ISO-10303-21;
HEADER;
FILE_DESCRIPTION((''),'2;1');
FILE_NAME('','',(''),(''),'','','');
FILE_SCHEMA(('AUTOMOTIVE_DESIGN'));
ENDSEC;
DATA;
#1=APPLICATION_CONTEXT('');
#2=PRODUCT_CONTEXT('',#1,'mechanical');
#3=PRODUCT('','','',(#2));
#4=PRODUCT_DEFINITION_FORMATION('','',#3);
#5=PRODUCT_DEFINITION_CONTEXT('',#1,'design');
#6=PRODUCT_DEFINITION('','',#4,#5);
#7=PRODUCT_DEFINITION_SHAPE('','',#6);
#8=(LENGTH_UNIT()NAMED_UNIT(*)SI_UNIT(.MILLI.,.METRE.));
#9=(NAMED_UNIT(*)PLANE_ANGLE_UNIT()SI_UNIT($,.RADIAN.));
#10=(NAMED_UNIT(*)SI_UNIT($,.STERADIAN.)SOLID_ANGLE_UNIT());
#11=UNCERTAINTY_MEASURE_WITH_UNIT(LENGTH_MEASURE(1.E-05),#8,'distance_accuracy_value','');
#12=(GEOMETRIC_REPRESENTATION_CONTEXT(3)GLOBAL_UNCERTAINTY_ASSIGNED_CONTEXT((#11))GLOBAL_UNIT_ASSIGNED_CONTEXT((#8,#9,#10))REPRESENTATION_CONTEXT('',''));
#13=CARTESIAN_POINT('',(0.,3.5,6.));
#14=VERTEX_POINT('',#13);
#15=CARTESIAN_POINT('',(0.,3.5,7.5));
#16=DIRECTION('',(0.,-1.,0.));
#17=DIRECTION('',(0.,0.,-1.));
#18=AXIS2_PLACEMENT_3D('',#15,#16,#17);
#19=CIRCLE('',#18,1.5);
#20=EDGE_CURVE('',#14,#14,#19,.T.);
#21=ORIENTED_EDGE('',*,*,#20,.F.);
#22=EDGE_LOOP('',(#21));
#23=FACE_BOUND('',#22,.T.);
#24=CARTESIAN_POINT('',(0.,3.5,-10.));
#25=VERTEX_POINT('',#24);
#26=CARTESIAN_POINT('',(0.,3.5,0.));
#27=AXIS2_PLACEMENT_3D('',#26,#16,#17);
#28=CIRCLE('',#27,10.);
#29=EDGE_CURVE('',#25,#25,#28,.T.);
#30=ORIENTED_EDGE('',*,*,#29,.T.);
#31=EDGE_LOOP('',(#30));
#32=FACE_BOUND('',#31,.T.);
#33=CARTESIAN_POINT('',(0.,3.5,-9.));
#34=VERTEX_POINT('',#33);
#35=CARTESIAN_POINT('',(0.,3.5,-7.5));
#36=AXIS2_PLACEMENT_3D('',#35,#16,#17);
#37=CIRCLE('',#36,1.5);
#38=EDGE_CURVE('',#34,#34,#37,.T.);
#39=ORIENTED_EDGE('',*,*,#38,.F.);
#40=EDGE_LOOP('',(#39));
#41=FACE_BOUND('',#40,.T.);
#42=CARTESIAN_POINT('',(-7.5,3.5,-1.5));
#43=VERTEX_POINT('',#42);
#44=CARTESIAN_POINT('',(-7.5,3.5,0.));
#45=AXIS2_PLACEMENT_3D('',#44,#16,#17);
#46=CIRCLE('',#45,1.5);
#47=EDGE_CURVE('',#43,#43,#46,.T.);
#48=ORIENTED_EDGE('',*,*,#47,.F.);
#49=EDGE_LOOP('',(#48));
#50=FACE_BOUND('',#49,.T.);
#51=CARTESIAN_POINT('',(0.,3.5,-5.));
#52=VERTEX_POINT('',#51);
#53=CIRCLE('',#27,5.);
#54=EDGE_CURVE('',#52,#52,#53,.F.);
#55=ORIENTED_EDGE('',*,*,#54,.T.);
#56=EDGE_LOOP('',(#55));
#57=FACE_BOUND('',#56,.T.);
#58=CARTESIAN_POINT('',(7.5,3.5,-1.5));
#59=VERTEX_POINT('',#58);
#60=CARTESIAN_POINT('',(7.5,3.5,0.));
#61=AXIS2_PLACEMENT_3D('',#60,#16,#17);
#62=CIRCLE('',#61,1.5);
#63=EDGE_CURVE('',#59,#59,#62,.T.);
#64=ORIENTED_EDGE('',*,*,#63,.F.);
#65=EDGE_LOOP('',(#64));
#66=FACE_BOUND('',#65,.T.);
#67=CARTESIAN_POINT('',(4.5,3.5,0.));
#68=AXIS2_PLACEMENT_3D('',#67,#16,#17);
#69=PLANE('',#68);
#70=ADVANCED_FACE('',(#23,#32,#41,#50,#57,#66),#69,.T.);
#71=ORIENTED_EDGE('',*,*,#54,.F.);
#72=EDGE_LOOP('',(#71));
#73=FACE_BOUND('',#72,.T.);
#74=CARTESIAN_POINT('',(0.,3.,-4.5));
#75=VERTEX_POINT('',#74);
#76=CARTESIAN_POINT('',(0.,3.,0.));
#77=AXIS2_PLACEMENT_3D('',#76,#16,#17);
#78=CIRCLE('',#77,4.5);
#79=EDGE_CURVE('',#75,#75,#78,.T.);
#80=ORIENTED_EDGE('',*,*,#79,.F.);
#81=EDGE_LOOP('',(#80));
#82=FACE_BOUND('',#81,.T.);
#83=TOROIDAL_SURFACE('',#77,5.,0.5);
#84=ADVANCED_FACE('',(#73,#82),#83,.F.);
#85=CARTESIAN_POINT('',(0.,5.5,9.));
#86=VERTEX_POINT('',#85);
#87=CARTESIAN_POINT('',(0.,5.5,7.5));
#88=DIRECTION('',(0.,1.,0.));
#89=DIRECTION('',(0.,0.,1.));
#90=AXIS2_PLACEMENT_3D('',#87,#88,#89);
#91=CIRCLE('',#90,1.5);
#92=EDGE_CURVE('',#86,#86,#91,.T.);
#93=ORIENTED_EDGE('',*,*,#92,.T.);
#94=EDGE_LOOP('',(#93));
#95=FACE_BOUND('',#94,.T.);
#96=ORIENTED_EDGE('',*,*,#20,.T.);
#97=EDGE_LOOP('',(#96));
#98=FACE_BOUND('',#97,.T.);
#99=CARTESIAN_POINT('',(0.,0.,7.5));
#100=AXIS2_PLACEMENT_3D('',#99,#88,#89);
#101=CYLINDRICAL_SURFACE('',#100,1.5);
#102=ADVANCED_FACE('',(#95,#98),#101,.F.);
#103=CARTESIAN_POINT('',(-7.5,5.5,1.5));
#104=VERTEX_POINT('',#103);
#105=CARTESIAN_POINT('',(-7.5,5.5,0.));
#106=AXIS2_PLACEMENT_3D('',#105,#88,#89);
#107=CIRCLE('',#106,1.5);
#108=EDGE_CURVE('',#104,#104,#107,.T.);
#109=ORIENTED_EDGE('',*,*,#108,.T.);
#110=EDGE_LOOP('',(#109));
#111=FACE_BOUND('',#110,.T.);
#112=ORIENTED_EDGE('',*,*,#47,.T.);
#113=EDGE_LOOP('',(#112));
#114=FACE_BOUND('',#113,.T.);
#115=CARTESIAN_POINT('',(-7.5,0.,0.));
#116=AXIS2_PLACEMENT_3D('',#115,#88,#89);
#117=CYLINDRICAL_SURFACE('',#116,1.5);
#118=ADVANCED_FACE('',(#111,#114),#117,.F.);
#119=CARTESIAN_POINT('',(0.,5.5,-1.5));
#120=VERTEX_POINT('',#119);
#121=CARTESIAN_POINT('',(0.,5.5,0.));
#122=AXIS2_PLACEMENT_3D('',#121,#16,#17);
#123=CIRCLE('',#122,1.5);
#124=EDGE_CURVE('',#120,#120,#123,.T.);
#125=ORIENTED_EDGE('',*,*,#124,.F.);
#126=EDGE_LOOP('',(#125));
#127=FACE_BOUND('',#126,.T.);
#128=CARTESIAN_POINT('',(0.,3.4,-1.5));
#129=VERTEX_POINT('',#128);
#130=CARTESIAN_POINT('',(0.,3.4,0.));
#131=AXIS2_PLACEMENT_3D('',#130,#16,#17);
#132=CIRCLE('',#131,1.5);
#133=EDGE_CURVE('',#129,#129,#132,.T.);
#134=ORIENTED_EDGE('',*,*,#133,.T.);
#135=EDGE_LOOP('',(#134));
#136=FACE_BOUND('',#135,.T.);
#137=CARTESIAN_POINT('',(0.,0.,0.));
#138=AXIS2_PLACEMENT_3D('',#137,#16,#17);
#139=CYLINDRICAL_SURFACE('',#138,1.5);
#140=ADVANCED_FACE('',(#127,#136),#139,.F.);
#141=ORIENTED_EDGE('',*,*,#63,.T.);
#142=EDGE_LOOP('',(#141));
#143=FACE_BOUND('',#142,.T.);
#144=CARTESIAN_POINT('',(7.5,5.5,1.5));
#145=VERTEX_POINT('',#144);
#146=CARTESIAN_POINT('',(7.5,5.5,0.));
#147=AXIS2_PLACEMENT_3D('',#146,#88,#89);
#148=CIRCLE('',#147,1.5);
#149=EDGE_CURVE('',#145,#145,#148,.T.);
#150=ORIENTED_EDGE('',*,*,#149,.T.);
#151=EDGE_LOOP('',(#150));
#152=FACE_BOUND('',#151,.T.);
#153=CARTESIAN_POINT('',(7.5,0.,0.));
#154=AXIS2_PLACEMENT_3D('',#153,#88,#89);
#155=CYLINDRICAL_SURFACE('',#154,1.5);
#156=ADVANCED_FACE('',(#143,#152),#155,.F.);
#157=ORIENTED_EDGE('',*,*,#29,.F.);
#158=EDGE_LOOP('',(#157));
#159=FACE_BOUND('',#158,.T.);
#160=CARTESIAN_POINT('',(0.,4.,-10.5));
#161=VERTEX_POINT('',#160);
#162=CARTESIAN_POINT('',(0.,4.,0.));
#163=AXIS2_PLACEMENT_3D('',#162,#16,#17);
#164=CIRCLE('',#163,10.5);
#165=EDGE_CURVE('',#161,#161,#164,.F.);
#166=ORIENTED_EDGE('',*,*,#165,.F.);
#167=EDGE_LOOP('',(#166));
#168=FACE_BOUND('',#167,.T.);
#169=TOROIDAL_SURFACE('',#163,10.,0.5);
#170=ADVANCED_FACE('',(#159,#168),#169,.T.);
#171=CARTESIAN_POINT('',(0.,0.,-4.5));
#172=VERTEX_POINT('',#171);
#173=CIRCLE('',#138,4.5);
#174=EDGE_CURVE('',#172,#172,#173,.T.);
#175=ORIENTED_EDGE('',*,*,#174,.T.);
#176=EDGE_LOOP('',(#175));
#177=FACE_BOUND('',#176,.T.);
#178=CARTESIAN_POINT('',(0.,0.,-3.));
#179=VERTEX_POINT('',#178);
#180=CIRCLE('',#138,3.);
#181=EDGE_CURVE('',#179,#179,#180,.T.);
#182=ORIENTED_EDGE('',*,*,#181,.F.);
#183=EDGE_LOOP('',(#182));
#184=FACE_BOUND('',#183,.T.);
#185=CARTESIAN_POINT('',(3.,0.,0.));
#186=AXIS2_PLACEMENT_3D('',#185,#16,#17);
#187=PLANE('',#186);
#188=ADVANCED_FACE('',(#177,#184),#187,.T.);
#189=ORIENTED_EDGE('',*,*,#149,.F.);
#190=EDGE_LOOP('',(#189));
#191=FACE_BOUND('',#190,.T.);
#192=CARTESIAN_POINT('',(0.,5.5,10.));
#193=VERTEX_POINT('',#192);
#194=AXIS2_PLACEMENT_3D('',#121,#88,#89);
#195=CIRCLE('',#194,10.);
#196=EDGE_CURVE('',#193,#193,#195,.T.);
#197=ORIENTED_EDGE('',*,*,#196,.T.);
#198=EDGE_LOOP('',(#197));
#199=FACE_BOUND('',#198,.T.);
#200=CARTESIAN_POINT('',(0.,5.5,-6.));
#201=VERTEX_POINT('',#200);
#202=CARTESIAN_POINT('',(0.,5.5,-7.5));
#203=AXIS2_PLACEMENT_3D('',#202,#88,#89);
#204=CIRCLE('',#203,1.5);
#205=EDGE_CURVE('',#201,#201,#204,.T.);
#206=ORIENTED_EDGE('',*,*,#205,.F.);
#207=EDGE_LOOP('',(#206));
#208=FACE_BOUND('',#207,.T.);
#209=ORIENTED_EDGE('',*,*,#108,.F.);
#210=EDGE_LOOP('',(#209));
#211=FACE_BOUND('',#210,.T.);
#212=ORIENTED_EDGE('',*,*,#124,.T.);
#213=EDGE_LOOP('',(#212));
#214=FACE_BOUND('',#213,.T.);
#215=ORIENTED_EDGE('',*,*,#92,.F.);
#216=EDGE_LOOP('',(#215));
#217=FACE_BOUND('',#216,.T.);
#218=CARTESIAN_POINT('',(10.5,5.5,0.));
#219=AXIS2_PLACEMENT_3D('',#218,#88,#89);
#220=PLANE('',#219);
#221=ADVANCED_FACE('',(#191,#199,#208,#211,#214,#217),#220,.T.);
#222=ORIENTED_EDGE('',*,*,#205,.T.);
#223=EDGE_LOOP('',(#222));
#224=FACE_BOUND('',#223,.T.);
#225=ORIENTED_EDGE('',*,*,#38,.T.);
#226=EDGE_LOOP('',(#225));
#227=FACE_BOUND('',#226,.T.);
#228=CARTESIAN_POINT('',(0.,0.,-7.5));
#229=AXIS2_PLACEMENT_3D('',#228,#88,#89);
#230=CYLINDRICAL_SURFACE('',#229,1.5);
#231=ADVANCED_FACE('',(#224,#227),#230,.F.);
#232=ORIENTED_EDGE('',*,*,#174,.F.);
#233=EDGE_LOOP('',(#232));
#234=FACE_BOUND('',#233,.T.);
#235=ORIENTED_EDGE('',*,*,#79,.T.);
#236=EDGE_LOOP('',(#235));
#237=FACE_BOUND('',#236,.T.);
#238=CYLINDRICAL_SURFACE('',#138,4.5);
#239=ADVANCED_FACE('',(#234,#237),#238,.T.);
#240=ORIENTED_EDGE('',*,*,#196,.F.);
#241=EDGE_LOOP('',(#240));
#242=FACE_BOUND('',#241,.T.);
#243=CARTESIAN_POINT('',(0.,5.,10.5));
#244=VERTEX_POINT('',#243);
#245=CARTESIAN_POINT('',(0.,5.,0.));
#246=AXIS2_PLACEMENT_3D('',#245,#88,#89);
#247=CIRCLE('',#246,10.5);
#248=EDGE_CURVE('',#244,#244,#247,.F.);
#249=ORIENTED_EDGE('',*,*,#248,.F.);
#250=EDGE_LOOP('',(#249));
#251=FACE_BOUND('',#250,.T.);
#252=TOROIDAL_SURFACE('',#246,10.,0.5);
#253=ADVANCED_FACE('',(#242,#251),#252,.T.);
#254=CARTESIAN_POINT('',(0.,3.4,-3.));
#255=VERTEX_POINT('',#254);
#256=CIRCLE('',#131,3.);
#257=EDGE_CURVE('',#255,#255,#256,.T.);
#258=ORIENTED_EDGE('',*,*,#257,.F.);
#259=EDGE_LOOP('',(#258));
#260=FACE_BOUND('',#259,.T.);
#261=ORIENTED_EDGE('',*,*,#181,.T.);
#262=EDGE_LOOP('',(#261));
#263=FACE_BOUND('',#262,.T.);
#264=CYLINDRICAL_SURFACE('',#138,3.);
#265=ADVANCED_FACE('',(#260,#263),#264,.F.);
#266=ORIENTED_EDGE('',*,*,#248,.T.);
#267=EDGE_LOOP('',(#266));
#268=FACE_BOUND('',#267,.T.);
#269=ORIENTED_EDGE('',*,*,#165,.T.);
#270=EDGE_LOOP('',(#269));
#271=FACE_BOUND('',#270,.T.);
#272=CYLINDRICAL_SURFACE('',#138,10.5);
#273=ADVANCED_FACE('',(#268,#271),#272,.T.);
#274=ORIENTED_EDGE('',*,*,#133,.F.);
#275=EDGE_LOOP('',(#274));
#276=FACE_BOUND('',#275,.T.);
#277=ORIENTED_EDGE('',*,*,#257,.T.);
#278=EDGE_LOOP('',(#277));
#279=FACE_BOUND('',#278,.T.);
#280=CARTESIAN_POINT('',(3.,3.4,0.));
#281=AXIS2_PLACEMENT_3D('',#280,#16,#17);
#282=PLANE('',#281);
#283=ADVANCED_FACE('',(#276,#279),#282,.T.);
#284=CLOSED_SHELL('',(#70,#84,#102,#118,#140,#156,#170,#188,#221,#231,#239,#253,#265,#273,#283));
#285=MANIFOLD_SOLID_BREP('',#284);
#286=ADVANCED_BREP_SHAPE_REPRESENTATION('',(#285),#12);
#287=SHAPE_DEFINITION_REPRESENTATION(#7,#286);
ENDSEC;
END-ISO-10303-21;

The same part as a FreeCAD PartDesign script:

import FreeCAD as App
import Part
import Sketcher


def edges_at(feature, points):
    """Names of the edges that pass closest to the given points."""
    edges = feature.Shape.Edges
    near = lambda p: min(range(len(edges)), key=lambda i: edges[i].distToShape(Part.Vertex(*p))[0])
    return sorted({f"Edge{near(p) + 1}" for p in points})

doc = App.newDocument("Part")
body = doc.addObject("PartDesign::Body", "Body")

# Sketch on XY plane
sketch1 = body.newObject("Sketcher::SketchObject", "Sketch")
sketch1.AttachmentSupport = (doc.getObject("XY_Plane"), [""])
sketch1.MapMode = "FlatFace"
sketch1.addGeometry([
    Part.LineSegment(App.Vector(3, 3.4, 0), App.Vector(3, 0, 0)),  # 0
    Part.LineSegment(App.Vector(3, 0, 0), App.Vector(4.5, 0, 0)),  # 1
    Part.LineSegment(App.Vector(4.5, 0, 0), App.Vector(4.5, 3.5, 0)),  # 2
    Part.LineSegment(App.Vector(4.5, 3.5, 0), App.Vector(10.5, 3.5, 0)),  # 3
    Part.LineSegment(App.Vector(10.5, 3.5, 0), App.Vector(10.5, 5.5, 0)),  # 4
    Part.LineSegment(App.Vector(10.5, 5.5, 0), App.Vector(1.5, 5.5, 0)),  # 5
    Part.LineSegment(App.Vector(1.5, 5.5, 0), App.Vector(1.5, 3.4, 0)),  # 6
    Part.LineSegment(App.Vector(1.5, 3.4, 0), App.Vector(3, 3.4, 0)),  # 7
], False)
sketch1.addConstraint([
    Sketcher.Constraint("Coincident", 0, 2, 1, 1),
    Sketcher.Constraint("Coincident", 1, 2, 2, 1),
    Sketcher.Constraint("Coincident", 2, 2, 3, 1),
    Sketcher.Constraint("Coincident", 3, 2, 4, 1),
    Sketcher.Constraint("Coincident", 4, 2, 5, 1),
    Sketcher.Constraint("Coincident", 5, 2, 6, 1),
    Sketcher.Constraint("Coincident", 6, 2, 7, 1),
    Sketcher.Constraint("Coincident", 7, 2, 0, 1),
    Sketcher.Constraint("Vertical", 0),
    Sketcher.Constraint("Horizontal", 1),
    Sketcher.Constraint("Vertical", 2),
    Sketcher.Constraint("Horizontal", 3),
    Sketcher.Constraint("Vertical", 4),
    Sketcher.Constraint("Horizontal", 5),
    Sketcher.Constraint("Vertical", 6),
    Sketcher.Constraint("Horizontal", 7),
    Sketcher.Constraint("PointOnObject", 0, 2, -1),
    Sketcher.Constraint("Equal", 1, 7),
    Sketcher.Constraint("DistanceX", 3, 1, 3, 2, 6.0),
    Sketcher.Constraint("DistanceX", 5, 2, 5, 1, 9.0),
    Sketcher.Constraint("DistanceY", 4, 1, 4, 2, 2.0),
    Sketcher.Constraint("DistanceY", 0, 2, 0, 1, 3.4),
    Sketcher.Constraint("DistanceY", 2, 1, 2, 2, 3.5),
    Sketcher.Constraint("DistanceX", -1, 1, 0, 2, 3.0),
])
revolution = body.newObject("PartDesign::Revolution", "Revolution")
revolution.Profile = sketch1
revolution.ReferenceAxis = (sketch1, ["V_Axis"])
revolution.Angle = 360
doc.recompute()

fillet = body.newObject("PartDesign::Fillet", "Fillet")
fillet.Base = (revolution, edges_at(revolution, [(0, 5.5, 10.5), (0, 3.5, 10.5), (0, 3.5, 4.5)]))
fillet.Radius = 0.5

# Sketch on XZ plane
sketch2 = body.newObject("Sketcher::SketchObject", "Sketch001")
sketch2.AttachmentSupport = (doc.getObject("XZ_Plane"), [""])
sketch2.MapMode = "FlatFace"
sketch2.AttachmentOffset = App.Placement(App.Vector(0, 0, -5.5), App.Rotation())
sketch2.addGeometry([
    Part.Circle(App.Vector(0, -7.5, 0), App.Vector(0, 0, 1), 1.5),
    Part.Circle(App.Vector(-7.5, 0, 0), App.Vector(0, 0, 1), 1.5),
    Part.Circle(App.Vector(0, 7.5, 0), App.Vector(0, 0, 1), 1.5),
    Part.Circle(App.Vector(7.5, 0, 0), App.Vector(0, 0, 1), 1.5),
], False)
sketch2.addConstraint([
    Sketcher.Constraint("Equal", 0, 1),
    Sketcher.Constraint("Equal", 1, 2),
    Sketcher.Constraint("Equal", 2, 3),
    Sketcher.Constraint("Symmetric", 0, 3, 2, 3, -1, 1),
    Sketcher.Constraint("Symmetric", 1, 3, 3, 3, -1, 1),
    Sketcher.Constraint("PointOnObject", 0, 3, -2),
    Sketcher.Constraint("PointOnObject", 1, 3, -1),
    Sketcher.Constraint("Diameter", 0, 3.0),
    Sketcher.Constraint("DistanceY", 0, 3, 2, 3, 15.0),
    Sketcher.Constraint("DistanceX", 1, 3, 3, 3, 15.0),
])
pocket1 = body.newObject("PartDesign::Pocket", "Pocket")
pocket1.Profile = sketch2
pocket1.Type = "ThroughAll"
pocket1.Reversed = True

doc.recompute()
